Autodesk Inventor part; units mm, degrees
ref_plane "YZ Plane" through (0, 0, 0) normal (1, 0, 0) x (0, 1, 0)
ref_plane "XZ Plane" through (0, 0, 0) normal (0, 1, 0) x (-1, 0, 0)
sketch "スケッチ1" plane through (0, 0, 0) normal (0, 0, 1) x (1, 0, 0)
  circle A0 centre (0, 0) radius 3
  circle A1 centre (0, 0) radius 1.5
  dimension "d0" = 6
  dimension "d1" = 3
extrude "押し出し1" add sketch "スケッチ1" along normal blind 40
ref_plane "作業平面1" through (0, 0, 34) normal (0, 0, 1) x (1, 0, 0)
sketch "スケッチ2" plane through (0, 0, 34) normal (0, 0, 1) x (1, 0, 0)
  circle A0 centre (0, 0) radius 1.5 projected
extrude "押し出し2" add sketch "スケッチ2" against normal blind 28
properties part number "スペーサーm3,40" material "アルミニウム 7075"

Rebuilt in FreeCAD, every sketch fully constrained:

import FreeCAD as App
import Part
import Sketcher

doc = App.newDocument("Part")
body = doc.addObject("PartDesign::Body", "Body")

sketch1 = body.newObject("Sketcher::SketchObject", "Sketch")
sketch1.AttachmentSupport = (doc.getObject("XY_Plane"), [""])
sketch1.MapMode = "FlatFace"
sketch1.addGeometry([
    Part.Circle(App.Vector(0, 0, 0), App.Vector(0, 0, 1), 3),
    Part.Circle(App.Vector(0, 0, 0), App.Vector(0, 0, 1), 1.5),
], False)
sketch1.addConstraint([
    Sketcher.Constraint("Coincident", 0, 3, -1, 1),
    Sketcher.Constraint("Coincident", 1, 3, -1, 1),
    Sketcher.Constraint("Diameter", 0, 6.0),
    Sketcher.Constraint("Diameter", 1, 3.0),
])
pad1 = body.newObject("PartDesign::Pad", "Pad")
pad1.Profile = sketch1
pad1.Length = 40

sketch2 = body.newObject("Sketcher::SketchObject", "Sketch001")
sketch2.AttachmentSupport = (doc.getObject("XY_Plane"), [""])
sketch2.MapMode = "FlatFace"
sketch2.AttachmentOffset = App.Placement(App.Vector(0, 0, 34), App.Rotation())
sketch2.addGeometry(Part.Circle(App.Vector(0, 0, 0), App.Vector(0, 0, 1), 1.5), False)
sketch2.addConstraint([
    Sketcher.Constraint("Coincident", 0, 3, -1, 1),
    Sketcher.Constraint("Diameter", 0, 3.0),
])
pad2 = body.newObject("PartDesign::Pad", "Pad001")
pad2.Profile = sketch2
pad2.Length = 28
pad2.Reversed = True

doc.recompute()
